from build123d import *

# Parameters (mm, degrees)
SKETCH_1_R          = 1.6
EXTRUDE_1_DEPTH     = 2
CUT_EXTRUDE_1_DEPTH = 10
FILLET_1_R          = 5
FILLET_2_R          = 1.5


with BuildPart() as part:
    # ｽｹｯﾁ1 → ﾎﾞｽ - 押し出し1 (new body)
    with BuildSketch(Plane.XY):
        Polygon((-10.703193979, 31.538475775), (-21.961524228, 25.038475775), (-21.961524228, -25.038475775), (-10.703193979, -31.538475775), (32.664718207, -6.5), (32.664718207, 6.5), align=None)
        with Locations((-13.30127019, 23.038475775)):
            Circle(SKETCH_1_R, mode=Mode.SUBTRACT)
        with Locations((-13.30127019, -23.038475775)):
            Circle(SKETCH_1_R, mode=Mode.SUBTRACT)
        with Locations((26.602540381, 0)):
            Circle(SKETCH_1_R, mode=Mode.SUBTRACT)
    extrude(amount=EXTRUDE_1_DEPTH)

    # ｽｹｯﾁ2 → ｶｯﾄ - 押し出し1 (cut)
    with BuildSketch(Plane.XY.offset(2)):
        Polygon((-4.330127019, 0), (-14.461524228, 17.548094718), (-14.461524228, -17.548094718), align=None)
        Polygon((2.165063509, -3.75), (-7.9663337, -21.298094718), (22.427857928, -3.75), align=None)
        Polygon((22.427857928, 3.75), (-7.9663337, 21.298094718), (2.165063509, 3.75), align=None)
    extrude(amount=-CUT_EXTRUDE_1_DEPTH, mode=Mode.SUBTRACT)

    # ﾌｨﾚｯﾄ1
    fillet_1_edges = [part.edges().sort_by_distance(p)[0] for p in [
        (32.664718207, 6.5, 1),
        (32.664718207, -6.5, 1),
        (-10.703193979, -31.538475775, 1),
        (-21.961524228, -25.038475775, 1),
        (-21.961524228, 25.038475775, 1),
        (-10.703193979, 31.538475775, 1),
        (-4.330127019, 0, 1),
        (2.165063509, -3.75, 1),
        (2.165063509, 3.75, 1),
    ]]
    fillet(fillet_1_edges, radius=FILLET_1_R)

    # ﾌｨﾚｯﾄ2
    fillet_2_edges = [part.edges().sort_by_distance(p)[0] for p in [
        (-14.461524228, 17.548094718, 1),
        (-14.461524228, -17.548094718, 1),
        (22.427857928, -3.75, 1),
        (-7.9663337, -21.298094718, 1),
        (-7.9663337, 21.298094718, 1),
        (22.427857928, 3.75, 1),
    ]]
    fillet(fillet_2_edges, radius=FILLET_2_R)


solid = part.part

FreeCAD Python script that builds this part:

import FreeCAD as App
import Part
import Sketcher
from FreeCAD import Vector
Q = App.Units.Quantity


def edges_at(feature, points):
    """Names of the edges that pass closest to the given points."""
    edges = feature.Shape.Edges
    near = lambda p: min(range(len(edges)), key=lambda i: edges[i].distToShape(Part.Vertex(*p))[0])
    return sorted({f"Edge{near(p) + 1}" for p in points})

doc = App.newDocument("Part")
body = doc.addObject("PartDesign::Body", "Body")

sketch1 = body.newObject("Sketcher::SketchObject", "Sketch")
sketch1.AttachmentSupport = (doc.getObject("XY_Plane"), [""])
sketch1.MapMode = "FlatFace"
sketch1.addGeometry(Part.LineSegment(Vector(-10.7, 31.5, 0), Vector(-22, 25, 0)), False)
sketch1.addGeometry(Part.LineSegment(Vector(-22, 25, 0), Vector(-22, -25, 0)), False)
sketch1.addGeometry(Part.LineSegment(Vector(-22, -25, 0), Vector(-10.7, -31.5, 0)), False)
sketch1.addGeometry(Part.LineSegment(Vector(-10.7, -31.5, 0), Vector(32.7, -6.5, 0)), False)
sketch1.addGeometry(Part.LineSegment(Vector(32.7, -6.5, 0), Vector(32.7, 6.5, 0)), False)
sketch1.addGeometry(Part.LineSegment(Vector(32.7, 6.5, 0), Vector(-10.7, 31.5, 0)), False)
sketch1.addGeometry(Part.Circle(Vector(-13.3, -23, 0), Vector(0, 0, 1), 1.6), False)
sketch1.addGeometry(Part.Circle(Vector(-13.3, 23, 0), Vector(0, 0, 1), 1.6), False)
sketch1.addGeometry(Part.Circle(Vector(26.6, 0, 0), Vector(0, 0, 1), 1.6), False)
sketch1.addConstraint(Sketcher.Constraint("Coincident", 0, 2, 1, 1))
sketch1.addConstraint(Sketcher.Constraint("Coincident", 1, 2, 2, 1))
sketch1.addConstraint(Sketcher.Constraint("Coincident", 2, 2, 3, 1))
sketch1.addConstraint(Sketcher.Constraint("Coincident", 3, 2, 4, 1))
sketch1.addConstraint(Sketcher.Constraint("Coincident", 4, 2, 5, 1))
sketch1.addConstraint(Sketcher.Constraint("Coincident", 5, 2, 0, 1))
sketch1.addConstraint(Sketcher.Constraint("Vertical", 1))
sketch1.addConstraint(Sketcher.Constraint("Vertical", 4))
sketch1.addConstraint(Sketcher.Constraint("Equal", 6, 7))
sketch1.addConstraint(Sketcher.Constraint("Equal", 7, 8))
sketch1.addConstraint(Sketcher.Constraint("Symmetric", 6, 3, 7, 3, -1))
sketch1.addConstraint(Sketcher.Constraint("Symmetric", 2, 2, 5, 2, -1))
sketch1.addConstraint(Sketcher.Constraint("PointOnObject", 8, 3, -1))
sketch1.addConstraint(Sketcher.Constraint("Parallel", 0, 3))
sketch1.addConstraint(Sketcher.Constraint("Parallel", 2, 5))
sketch1.addConstraint(Sketcher.Constraint("Equal", 0, 2))
sketch1.addConstraint(Sketcher.Constraint("Diameter", 6, 3.2))
sketch1.addConstraint(Sketcher.Constraint("DistanceY", 4, 1, 4, 2, 13.0))
sketch1.addConstraint(Sketcher.Constraint("Angle", 0, Q("-150 deg")))
sketch1.addConstraint(Sketcher.Constraint("Distance", 0, 13.0))
sketch1.addConstraint(Sketcher.Constraint("DistanceY", 7, 3, 0, 2, 2.0))
sketch1.addConstraint(Sketcher.Constraint("DistanceY", 1, 2, 1, 1, 50.076952))
sketch1.addConstraint(Sketcher.Constraint("DistanceX", 6, 3, -1, 1, 13.30127))
sketch1.addConstraint(Sketcher.Constraint("DistanceX", -1, 1, 8, 3, 26.60254))
sketch1.addConstraint(Sketcher.Constraint("DistanceX", -1, 1, 3, 2, 32.664718))
pad1 = body.newObject("PartDesign::Pad", "Pad")
pad1.Profile = sketch1
pad1.Length = 2

sketch2 = body.newObject("Sketcher::SketchObject", "Sketch001")
sketch2.AttachmentSupport = (doc.getObject("XY_Plane"), [""])
sketch2.MapMode = "FlatFace"
sketch2.AttachmentOffset = App.Placement(Vector(0, 0, 2), App.Rotation())
sketch2.addGeometry(Part.LineSegment(Vector(-4, 0, 0), Vector(-14, 18, 0)), False)
sketch2.addGeometry(Part.LineSegment(Vector(-14, 18, 0), Vector(-14, -18, 0)), False)
sketch2.addGeometry(Part.LineSegment(Vector(-14, -18, 0), Vector(-4, 0, 0)), False)
sketch2.addGeometry(Part.LineSegment(Vector(2, -4, 0), Vector(-8, -21, 0)), False)
sketch2.addGeometry(Part.LineSegment(Vector(-8, -21, 0), Vector(22, -4, 0)), False)
sketch2.addGeometry(Part.LineSegment(Vector(22, -4, 0), Vector(2, -4, 0)), False)
sketch2.addGeometry(Part.LineSegment(Vector(22, 4, 0), Vector(-8, 21, 0)), False)
sketch2.addGeometry(Part.LineSegment(Vector(-8, 21, 0), Vector(2, 4, 0)), False)
sketch2.addGeometry(Part.LineSegment(Vector(2, 4, 0), Vector(22, 4, 0)), False)
sketch2.addConstraint(Sketcher.Constraint("Coincident", 0, 2, 1, 1))
sketch2.addConstraint(Sketcher.Constraint("Coincident", 1, 2, 2, 1))
sketch2.addConstraint(Sketcher.Constraint("Coincident", 2, 2, 0, 1))
sketch2.addConstraint(Sketcher.Constraint("Coincident", 3, 2, 4, 1))
sketch2.addConstraint(Sketcher.Constraint("Coincident", 4, 2, 5, 1))
sketch2.addConstraint(Sketcher.Constraint("Coincident", 5, 2, 3, 1))
sketch2.addConstraint(Sketcher.Constraint("Coincident", 6, 2, 7, 1))
sketch2.addConstraint(Sketcher.Constraint("Coincident", 7, 2, 8, 1))
sketch2.addConstraint(Sketcher.Constraint("Coincident", 8, 2, 6, 1))
sketch2.addConstraint(Sketcher.Constraint("Vertical", 1))
sketch2.addConstraint(Sketcher.Constraint("Horizontal", 5))
sketch2.addConstraint(Sketcher.Constraint("Horizontal", 8))
sketch2.addConstraint(Sketcher.Constraint("Symmetric", 3, 2, 6, 2, -1))
sketch2.addConstraint(Sketcher.Constraint("Symmetric", 5, 2, 7, 2, -1))
sketch2.addConstraint(Sketcher.Constraint("PointOnObject", 2, 2, -1))
sketch2.addConstraint(Sketcher.Constraint("Parallel", 2, 3))
sketch2.addConstraint(Sketcher.Constraint("Perpendicular", 0, 4))
sketch2.addConstraint(Sketcher.Constraint("Perpendicular", 3, 6))
sketch2.addConstraint(Sketcher.Constraint("Perpendicular", 4, 7))
sketch2.addConstraint(Sketcher.Constraint("Equal", 2, 3))
sketch2.addConstraint(Sketcher.Constraint("Angle", 0, Q("120 deg")))
sketch2.addConstraint(Sketcher.Constraint("DistanceY", 5, 2, 7, 2, 7.5))
sketch2.addConstraint(Sketcher.Constraint("DistanceY", 1, 2, 1, 1, 35.096189))
sketch2.addConstraint(Sketcher.Constraint("DistanceX", 1, 2, 3, 2, 6.495191))
sketch2.addConstraint(Sketcher.Constraint("DistanceX", 0, 2, -1, 1, 14.461524))
pocket1 = body.newObject("PartDesign::Pocket", "Pocket")
pocket1.Profile = sketch2
pocket1.Length = 10
doc.recompute()

fillet = body.newObject("PartDesign::Fillet", "Fillet")
fillet.Base = (pocket1, edges_at(pocket1, [
    (32.665, 6.5, 1),
    (32.665, -6.5, 1),
    (-10.703, -31.538, 1),
    (-21.962, -25.038, 1),
    (-21.962, 25.038, 1),
    (-10.703, 31.538, 1),
    (-4.33, 0, 1),
    (2.165, -3.75, 1),
    (2.165, 3.75, 1),
]))
fillet.Radius = 5
doc.recompute()

fillet2 = body.newObject("PartDesign::Fillet", "Fillet001")
fillet2.Base = (fillet, edges_at(fillet, [
    (-14.462, 17.548, 1),
    (-14.462, -17.548, 1),
    (22.428, -3.75, 1),
    (-7.966, -21.298, 1),
    (-7.966, 21.298, 1),
    (22.428, 3.75, 1),
]))
fillet2.Radius = 1.5

doc.recompute()
